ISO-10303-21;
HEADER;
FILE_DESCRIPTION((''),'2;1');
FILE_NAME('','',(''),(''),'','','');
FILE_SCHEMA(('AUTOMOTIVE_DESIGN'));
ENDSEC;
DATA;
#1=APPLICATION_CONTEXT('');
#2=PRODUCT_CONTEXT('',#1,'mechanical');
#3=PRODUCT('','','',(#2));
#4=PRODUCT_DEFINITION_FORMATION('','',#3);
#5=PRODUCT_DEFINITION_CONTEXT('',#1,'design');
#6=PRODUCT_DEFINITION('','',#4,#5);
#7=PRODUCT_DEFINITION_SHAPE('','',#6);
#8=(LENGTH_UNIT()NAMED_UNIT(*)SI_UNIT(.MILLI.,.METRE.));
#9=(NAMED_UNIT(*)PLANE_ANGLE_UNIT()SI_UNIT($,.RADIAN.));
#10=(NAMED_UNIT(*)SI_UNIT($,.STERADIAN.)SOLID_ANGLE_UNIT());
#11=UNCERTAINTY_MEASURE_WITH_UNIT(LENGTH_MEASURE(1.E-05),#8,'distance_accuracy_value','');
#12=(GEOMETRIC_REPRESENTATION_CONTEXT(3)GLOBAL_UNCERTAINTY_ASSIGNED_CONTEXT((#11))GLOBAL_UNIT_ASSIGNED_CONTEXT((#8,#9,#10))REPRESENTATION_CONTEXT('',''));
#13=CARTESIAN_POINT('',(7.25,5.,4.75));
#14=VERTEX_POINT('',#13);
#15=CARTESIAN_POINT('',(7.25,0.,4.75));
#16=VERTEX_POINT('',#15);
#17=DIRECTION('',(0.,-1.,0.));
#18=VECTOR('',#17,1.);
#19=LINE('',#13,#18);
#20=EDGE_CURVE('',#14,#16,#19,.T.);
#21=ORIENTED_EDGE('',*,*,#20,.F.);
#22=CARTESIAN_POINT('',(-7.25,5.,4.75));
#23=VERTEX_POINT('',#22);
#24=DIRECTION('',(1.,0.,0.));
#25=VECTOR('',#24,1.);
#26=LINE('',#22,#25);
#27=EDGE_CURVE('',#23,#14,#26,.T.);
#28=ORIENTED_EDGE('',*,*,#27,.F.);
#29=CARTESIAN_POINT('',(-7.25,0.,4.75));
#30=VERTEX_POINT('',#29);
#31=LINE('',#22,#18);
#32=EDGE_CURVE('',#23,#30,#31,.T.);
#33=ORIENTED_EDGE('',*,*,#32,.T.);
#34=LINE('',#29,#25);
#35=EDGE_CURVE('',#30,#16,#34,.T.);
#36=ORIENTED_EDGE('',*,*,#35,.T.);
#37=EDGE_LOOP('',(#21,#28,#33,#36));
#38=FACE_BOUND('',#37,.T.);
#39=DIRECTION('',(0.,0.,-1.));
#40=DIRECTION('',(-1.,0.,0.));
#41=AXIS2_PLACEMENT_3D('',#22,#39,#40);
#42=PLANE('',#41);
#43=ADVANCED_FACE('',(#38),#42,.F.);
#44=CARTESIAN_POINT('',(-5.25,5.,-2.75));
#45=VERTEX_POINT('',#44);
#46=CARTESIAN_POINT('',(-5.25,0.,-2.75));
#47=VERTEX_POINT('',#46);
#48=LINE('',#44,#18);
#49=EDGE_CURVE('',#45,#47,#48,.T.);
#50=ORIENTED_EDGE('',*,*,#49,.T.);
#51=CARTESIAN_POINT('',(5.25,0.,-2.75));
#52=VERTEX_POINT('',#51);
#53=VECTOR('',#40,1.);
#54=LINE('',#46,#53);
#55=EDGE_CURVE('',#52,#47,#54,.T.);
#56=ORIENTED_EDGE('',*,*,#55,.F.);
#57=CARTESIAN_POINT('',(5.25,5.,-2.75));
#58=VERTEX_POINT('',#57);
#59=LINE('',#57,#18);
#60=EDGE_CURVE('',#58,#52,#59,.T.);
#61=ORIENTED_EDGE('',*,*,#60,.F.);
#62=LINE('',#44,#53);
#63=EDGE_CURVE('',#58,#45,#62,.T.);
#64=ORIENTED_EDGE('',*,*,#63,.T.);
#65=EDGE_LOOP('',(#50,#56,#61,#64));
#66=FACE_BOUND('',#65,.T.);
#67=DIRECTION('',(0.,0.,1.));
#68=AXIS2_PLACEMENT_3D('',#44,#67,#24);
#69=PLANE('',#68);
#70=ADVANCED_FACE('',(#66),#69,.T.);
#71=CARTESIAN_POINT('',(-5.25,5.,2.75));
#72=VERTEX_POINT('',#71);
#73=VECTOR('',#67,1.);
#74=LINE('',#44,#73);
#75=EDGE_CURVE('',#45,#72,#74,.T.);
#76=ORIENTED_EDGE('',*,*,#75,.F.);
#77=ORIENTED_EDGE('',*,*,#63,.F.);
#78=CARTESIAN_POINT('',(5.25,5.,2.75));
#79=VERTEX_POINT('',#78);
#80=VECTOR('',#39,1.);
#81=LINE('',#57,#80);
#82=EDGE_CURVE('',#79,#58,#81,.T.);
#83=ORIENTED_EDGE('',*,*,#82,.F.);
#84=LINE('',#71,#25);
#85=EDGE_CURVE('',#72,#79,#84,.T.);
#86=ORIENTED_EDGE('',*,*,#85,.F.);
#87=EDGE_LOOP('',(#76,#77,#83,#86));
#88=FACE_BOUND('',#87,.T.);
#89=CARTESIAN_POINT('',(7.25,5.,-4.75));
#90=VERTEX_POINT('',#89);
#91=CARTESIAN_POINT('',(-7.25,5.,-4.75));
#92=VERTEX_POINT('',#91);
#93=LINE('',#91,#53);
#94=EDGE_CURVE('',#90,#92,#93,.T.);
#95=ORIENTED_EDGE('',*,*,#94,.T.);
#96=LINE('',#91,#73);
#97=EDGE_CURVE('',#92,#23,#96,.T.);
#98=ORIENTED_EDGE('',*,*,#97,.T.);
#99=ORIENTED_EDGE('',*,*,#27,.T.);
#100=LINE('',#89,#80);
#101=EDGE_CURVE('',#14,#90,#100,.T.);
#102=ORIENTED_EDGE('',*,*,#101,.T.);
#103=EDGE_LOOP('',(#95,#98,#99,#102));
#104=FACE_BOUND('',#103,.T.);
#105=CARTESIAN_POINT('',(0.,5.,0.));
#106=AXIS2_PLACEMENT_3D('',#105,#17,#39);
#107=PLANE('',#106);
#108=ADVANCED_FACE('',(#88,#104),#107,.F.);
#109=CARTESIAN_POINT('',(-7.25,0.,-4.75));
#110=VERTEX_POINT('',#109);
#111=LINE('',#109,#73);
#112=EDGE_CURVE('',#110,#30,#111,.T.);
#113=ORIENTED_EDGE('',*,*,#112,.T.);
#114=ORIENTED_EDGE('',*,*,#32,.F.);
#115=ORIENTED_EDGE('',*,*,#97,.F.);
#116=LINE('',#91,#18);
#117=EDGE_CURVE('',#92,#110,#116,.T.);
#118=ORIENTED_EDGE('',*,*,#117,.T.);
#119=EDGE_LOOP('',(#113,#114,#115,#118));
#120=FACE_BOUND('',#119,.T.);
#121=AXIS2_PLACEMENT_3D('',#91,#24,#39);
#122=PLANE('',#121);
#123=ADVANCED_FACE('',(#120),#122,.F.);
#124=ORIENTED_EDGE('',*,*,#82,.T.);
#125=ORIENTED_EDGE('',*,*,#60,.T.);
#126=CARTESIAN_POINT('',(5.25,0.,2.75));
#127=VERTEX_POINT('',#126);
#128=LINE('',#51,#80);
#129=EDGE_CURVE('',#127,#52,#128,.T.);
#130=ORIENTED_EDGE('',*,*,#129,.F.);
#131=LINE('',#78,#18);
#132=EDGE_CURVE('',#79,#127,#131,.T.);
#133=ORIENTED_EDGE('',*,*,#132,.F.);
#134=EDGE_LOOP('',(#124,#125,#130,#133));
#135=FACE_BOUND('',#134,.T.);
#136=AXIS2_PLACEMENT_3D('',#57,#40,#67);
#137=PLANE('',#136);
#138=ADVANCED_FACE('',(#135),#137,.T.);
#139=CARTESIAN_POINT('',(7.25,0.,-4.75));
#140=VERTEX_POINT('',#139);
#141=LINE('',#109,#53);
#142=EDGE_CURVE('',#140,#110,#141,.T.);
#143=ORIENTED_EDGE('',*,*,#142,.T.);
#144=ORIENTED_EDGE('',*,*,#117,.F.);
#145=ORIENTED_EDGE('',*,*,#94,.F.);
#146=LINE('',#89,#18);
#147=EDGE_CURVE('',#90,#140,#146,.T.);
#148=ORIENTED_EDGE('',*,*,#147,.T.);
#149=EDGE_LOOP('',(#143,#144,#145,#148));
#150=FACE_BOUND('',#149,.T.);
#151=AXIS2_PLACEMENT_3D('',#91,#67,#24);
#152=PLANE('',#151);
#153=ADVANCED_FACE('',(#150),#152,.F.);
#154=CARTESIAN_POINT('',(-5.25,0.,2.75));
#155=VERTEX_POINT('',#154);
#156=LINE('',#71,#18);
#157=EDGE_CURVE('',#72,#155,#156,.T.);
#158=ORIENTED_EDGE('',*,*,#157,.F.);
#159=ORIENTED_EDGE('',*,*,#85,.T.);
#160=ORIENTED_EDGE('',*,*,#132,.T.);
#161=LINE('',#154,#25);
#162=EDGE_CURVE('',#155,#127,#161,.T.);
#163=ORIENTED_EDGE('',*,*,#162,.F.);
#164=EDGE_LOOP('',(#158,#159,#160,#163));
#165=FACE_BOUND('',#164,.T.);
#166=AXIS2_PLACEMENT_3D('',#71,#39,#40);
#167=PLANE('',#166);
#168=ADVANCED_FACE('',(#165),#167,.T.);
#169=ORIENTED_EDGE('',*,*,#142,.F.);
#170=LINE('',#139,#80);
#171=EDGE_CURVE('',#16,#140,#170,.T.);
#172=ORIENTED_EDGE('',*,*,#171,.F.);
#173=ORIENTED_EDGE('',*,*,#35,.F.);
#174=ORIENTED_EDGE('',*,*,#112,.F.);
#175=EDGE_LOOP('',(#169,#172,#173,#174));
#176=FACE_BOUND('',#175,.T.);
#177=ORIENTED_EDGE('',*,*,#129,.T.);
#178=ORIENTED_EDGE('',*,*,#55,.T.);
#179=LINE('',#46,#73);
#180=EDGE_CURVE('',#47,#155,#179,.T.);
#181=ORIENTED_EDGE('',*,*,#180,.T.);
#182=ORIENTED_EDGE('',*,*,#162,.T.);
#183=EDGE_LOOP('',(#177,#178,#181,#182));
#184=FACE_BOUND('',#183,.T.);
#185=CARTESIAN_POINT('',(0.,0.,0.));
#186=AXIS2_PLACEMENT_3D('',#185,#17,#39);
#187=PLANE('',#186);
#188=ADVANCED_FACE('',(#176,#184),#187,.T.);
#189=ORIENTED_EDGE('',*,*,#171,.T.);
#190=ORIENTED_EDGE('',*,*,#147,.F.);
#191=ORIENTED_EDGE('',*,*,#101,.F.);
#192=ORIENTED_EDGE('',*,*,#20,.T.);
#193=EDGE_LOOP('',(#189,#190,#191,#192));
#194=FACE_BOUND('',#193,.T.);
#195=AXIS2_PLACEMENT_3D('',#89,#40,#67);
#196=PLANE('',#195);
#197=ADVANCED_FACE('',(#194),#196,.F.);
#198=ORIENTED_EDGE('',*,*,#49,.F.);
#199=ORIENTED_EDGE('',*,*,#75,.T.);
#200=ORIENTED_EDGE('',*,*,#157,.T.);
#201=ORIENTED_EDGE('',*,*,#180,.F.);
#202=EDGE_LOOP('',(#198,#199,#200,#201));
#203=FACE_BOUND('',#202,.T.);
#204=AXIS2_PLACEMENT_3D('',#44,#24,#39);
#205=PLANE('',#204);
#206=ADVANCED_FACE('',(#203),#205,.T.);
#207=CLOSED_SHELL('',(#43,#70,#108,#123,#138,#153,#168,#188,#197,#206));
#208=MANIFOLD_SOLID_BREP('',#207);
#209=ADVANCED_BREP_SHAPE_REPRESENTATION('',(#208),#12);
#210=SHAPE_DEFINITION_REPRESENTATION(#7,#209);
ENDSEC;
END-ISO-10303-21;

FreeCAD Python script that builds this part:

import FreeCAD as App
import Part
import Sketcher
Q = App.Units.Quantity

doc = App.newDocument("Part")
body = doc.addObject("PartDesign::Body", "Body")

sketch1 = body.newObject("Sketcher::SketchObject", "Sketch")
sketch1.AttachmentSupport = (doc.getObject("XZ_Plane"), [""])
sketch1.MapMode = "FlatFace"
sketch1.addGeometry([
    Part.LineSegment(App.Vector(-7, -5, 0), App.Vector(-7, 5, 0)),
    Part.LineSegment(App.Vector(-7, 5, 0), App.Vector(7, 5, 0)),
    Part.LineSegment(App.Vector(7, 5, 0), App.Vector(7, -5, 0)),
    Part.LineSegment(App.Vector(7, -5, 0), App.Vector(-7, -5, 0)),
    Part.LineSegment(App.Vector(5, 3, 0), App.Vector(-5, 3, 0)),
    Part.LineSegment(App.Vector(-5, 3, 0), App.Vector(-5, -3, 0)),
    Part.LineSegment(App.Vector(-5, -3, 0), App.Vector(5, -3, 0)),
    Part.LineSegment(App.Vector(5, -3, 0), App.Vector(5, 3, 0)),
], False)
sketch1.addConstraint([
    Sketcher.Constraint("Coincident", 0, 2, 1, 1),
    Sketcher.Constraint("Coincident", 1, 2, 2, 1),
    Sketcher.Constraint("Coincident", 2, 2, 3, 1),
    Sketcher.Constraint("Coincident", 3, 2, 0, 1),
    Sketcher.Constraint("Coincident", 4, 2, 5, 1),
    Sketcher.Constraint("Coincident", 5, 2, 6, 1),
    Sketcher.Constraint("Coincident", 6, 2, 7, 1),
    Sketcher.Constraint("Coincident", 7, 2, 4, 1),
    Sketcher.Constraint("Vertical", 0),
    Sketcher.Constraint("Horizontal", 1),
    Sketcher.Constraint("Vertical", 2),
    Sketcher.Constraint("Horizontal", 3),
    Sketcher.Constraint("Horizontal", 4),
    Sketcher.Constraint("Vertical", 5),
    Sketcher.Constraint("Horizontal", 6),
    Sketcher.Constraint("Vertical", 7),
    Sketcher.Constraint("Symmetric", 0, 2, 2, 2, -1, 1),
    Sketcher.Constraint("Symmetric", 4, 2, 6, 2, -1, 1),
    Sketcher.Constraint("DistanceX", 1, 1, 1, 2, Q("14.5 mm")),
    Sketcher.Constraint("DistanceX", 4, 2, 4, 1, Q("10.5 mm")),
    Sketcher.Constraint("DistanceY", 0, 1, 0, 2, Q("9.5 mm")),
    Sketcher.Constraint("DistanceY", 5, 2, 5, 1, Q("5.5 mm")),
])
pad1 = body.newObject("PartDesign::Pad", "Pad")
pad1.Profile = sketch1
pad1.Length = 5
pad1.Reversed = True

doc.recompute()
